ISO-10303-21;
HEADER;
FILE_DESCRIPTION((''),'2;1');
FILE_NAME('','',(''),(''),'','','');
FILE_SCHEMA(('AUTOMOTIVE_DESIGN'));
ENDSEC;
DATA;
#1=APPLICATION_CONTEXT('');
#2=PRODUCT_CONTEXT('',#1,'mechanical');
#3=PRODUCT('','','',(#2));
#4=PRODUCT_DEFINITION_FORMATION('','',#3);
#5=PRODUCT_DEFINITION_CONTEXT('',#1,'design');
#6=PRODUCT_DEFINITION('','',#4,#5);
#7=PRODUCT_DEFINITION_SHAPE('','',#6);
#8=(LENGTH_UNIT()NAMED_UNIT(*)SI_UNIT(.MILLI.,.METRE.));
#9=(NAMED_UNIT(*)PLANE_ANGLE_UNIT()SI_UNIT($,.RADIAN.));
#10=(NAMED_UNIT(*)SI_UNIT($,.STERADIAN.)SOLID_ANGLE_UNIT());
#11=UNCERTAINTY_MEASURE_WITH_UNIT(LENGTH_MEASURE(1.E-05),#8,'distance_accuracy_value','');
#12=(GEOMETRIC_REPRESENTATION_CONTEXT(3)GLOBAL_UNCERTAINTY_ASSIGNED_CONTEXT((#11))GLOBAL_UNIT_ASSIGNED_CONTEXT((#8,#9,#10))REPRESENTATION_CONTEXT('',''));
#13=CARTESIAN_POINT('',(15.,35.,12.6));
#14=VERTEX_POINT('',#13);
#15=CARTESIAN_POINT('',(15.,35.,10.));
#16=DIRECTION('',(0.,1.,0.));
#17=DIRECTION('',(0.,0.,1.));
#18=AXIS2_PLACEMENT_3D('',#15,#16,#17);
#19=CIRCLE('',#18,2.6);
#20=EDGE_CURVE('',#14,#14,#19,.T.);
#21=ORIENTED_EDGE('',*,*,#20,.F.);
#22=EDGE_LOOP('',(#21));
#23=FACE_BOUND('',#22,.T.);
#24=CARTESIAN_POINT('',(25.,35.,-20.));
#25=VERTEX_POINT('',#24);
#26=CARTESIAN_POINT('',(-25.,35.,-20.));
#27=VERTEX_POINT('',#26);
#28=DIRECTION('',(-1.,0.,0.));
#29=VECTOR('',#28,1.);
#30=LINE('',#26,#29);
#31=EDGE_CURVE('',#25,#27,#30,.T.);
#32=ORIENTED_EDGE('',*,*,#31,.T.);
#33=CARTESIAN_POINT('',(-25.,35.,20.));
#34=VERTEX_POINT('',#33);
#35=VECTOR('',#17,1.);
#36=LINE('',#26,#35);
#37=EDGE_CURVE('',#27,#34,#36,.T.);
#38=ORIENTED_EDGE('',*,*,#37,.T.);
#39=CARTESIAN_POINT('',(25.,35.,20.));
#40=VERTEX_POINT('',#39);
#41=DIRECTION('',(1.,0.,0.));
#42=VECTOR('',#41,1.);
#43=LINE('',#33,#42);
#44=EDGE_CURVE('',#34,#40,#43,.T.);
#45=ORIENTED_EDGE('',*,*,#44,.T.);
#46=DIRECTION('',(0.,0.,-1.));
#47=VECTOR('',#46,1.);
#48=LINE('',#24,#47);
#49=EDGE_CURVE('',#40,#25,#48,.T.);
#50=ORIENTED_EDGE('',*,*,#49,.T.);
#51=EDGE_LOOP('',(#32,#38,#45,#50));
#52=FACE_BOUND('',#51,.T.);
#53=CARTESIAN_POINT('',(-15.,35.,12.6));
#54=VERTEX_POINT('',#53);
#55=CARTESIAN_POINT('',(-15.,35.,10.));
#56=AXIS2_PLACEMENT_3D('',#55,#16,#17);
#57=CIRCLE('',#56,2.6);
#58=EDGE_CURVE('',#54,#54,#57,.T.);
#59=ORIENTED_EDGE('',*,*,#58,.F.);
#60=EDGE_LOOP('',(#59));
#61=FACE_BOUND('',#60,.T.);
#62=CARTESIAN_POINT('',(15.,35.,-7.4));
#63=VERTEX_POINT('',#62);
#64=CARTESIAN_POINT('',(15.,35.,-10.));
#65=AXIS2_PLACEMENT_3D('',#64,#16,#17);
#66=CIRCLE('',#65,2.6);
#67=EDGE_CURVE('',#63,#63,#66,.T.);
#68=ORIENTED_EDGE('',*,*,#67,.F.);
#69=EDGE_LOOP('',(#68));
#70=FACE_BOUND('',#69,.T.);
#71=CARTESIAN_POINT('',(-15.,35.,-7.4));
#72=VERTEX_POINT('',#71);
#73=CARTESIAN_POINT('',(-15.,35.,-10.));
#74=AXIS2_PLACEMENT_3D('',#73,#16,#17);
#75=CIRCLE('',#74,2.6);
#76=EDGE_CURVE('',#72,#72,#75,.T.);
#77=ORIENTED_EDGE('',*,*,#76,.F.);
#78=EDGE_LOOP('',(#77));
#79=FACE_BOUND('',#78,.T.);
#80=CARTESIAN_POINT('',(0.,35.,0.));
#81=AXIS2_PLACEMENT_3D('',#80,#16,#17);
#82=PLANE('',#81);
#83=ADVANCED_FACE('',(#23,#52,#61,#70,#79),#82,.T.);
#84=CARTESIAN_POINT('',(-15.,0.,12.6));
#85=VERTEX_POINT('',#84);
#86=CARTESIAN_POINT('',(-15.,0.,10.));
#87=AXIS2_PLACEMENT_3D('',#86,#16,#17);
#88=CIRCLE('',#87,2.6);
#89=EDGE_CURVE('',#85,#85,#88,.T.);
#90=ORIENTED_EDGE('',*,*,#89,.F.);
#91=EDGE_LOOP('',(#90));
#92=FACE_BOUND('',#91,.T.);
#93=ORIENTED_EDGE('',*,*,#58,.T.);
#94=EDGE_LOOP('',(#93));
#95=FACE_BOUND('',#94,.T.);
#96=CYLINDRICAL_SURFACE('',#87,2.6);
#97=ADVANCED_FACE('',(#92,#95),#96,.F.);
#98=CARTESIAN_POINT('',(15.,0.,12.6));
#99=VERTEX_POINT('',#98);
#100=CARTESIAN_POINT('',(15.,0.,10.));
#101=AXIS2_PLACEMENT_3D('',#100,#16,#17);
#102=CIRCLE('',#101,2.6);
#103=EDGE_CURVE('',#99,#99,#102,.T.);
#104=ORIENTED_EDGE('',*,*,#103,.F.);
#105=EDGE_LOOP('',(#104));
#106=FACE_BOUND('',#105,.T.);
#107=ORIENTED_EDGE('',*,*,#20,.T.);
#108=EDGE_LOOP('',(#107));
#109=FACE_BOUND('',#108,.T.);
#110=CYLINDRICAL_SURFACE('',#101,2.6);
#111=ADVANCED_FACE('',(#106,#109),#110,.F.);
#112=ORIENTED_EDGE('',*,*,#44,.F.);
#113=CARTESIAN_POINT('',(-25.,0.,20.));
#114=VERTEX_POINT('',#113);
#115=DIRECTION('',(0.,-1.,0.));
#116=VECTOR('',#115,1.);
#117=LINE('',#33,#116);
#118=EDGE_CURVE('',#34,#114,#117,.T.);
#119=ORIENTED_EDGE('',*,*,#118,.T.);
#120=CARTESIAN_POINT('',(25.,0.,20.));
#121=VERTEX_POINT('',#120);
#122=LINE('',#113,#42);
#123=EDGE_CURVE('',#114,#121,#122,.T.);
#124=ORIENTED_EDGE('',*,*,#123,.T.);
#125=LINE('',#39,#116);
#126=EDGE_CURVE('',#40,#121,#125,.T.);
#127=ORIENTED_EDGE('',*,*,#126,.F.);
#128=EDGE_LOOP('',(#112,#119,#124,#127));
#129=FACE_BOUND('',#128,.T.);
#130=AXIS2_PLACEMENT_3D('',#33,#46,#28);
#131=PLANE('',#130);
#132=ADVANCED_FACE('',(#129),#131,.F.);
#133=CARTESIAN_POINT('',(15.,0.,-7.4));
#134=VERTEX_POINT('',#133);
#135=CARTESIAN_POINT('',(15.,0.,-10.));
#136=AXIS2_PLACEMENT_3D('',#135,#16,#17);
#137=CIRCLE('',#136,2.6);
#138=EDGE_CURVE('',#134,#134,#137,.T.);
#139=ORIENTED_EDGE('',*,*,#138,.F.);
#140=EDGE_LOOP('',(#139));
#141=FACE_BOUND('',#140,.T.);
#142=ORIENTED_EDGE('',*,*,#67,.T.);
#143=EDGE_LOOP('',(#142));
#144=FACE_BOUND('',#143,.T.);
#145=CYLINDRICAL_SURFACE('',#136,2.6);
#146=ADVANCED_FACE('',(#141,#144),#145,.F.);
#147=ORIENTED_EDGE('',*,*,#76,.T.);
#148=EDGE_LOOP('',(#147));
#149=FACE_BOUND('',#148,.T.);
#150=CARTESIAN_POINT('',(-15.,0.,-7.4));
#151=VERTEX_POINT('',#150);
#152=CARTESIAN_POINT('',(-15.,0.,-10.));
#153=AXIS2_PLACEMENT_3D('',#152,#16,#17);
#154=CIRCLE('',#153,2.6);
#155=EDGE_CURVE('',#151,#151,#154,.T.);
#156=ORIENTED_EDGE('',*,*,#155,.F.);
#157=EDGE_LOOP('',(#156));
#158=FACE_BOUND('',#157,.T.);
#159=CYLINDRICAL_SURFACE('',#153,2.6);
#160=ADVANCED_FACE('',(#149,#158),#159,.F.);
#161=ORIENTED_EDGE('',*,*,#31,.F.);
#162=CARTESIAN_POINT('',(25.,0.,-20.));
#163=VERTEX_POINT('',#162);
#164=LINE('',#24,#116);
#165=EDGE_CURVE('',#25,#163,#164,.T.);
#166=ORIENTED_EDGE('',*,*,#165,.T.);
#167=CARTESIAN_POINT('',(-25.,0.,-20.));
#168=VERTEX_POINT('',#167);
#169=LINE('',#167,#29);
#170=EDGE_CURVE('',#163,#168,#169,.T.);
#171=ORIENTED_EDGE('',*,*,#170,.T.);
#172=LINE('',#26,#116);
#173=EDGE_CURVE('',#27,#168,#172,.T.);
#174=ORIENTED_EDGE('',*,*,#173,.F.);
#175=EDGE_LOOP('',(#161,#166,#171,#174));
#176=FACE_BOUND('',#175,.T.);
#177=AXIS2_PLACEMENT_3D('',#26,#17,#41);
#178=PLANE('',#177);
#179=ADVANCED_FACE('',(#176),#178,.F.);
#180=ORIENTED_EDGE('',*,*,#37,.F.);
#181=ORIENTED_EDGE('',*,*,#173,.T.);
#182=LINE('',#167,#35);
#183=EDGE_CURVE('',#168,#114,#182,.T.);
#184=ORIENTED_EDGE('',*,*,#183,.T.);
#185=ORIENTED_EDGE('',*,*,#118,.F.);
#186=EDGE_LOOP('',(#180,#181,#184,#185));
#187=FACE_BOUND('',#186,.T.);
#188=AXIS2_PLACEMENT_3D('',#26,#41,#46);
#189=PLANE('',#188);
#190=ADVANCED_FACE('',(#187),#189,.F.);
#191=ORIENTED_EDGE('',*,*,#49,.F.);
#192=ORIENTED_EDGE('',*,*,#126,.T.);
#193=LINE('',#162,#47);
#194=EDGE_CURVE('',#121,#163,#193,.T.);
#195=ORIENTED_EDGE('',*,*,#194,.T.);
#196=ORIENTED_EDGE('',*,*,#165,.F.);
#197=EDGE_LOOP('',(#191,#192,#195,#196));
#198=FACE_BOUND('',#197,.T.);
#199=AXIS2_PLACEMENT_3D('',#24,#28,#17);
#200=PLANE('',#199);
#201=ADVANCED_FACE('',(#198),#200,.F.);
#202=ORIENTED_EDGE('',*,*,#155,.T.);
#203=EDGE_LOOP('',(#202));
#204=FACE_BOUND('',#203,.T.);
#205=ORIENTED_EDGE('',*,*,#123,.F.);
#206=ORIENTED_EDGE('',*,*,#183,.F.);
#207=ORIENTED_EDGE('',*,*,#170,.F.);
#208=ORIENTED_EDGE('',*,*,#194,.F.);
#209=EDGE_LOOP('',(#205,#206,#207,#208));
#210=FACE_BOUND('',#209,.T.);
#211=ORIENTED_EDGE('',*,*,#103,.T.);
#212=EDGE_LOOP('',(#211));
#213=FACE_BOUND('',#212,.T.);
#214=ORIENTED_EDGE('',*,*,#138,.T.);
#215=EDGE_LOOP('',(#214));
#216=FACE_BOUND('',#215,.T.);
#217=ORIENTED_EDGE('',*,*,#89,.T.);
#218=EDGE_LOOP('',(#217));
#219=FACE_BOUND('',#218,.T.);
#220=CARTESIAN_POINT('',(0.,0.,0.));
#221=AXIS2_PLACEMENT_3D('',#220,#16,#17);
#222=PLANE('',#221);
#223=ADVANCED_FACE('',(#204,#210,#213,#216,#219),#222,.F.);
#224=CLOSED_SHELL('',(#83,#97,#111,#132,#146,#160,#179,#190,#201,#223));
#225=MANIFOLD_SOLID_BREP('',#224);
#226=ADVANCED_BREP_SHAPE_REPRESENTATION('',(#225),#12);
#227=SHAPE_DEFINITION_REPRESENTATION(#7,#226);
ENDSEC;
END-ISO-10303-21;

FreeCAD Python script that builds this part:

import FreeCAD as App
import Part
import Sketcher
from FreeCAD import Vector


def add_polygon(sketch, points):
    """Adds a closed chain of lines whose ends are joined by coincident constraints."""
    first, n = sketch.GeometryCount, len(points)
    for a, b in zip(points, points[1:] + points[:1]):
        sketch.addGeometry(Part.LineSegment(App.Vector(*a, 0), App.Vector(*b, 0)), False)
    for i in range(n):
        sketch.addConstraint(Sketcher.Constraint("Coincident", first + i, 2, first + (i + 1) % n, 1))

doc = App.newDocument("Part")
params = doc.addObject("Spreadsheet::Sheet", "Params")
for row, (alias, value) in enumerate([
    ("sketch1_width", "50 mm"),
    ("sketch1_height", "40 mm"),
    ("pad1_length", "35 mm"),
    ("sketch2_diameter", "5.2 mm"),
], start=1):
    params.set(f"A{row}", alias)
    params.set(f"B{row}", "=" + value)
    params.setAlias(f"B{row}", alias)

body = doc.addObject("PartDesign::Body", "Body")

# Sketch on XZ plane
sketch1 = body.newObject("Sketcher::SketchObject", "Sketch")
sketch1.AttachmentSupport = (doc.getObject("XZ_Plane"), [""])
sketch1.MapMode = "FlatFace"
add_polygon(sketch1, [(-25, -20), (-25, 20), (25, 20), (25, -20)])  # lines 0-3
sketch1.addConstraint(Sketcher.Constraint("Vertical", 0))
sketch1.addConstraint(Sketcher.Constraint("Horizontal", 1))
sketch1.addConstraint(Sketcher.Constraint("Vertical", 2))
sketch1.addConstraint(Sketcher.Constraint("Horizontal", 3))
sketch1.addConstraint(Sketcher.Constraint("Symmetric", 0, 2, 2, 2, -1, 1))
sketch1.addConstraint(Sketcher.Constraint("DistanceX", 1, 1, 1, 2, 50.0))
sketch1.addConstraint(Sketcher.Constraint("DistanceY", 0, 1, 0, 2, 40.0))
sketch1.setExpression("Constraints[9]", "Params.sketch1_width")
sketch1.setExpression("Constraints[10]", "Params.sketch1_height")
pad1 = body.newObject("PartDesign::Pad", "Pad")
pad1.Profile = sketch1
pad1.setExpression("Length", "Params.pad1_length")
pad1.Reversed = True

# Sketch on XZ plane
sketch2 = body.newObject("Sketcher::SketchObject", "Sketch001")
sketch2.AttachmentSupport = (doc.getObject("XZ_Plane"), [""])
sketch2.MapMode = "FlatFace"
sketch2.AttachmentOffset = App.Placement(Vector(0, 0, -35), App.Rotation())
sketch2.addGeometry(Part.Circle(Vector(-15, 10, 0), Vector(0, 0, 1), 2.6), False)
sketch2.addGeometry(Part.Circle(Vector(15, 10, 0), Vector(0, 0, 1), 2.6), False)
sketch2.addGeometry(Part.Circle(Vector(-15, -10, 0), Vector(0, 0, 1), 2.6), False)
sketch2.addGeometry(Part.Circle(Vector(15, -10, 0), Vector(0, 0, 1), 2.6), False)
sketch2.addConstraint(Sketcher.Constraint("Equal", 0, 1))
sketch2.addConstraint(Sketcher.Constraint("Equal", 1, 2))
sketch2.addConstraint(Sketcher.Constraint("Equal", 2, 3))
sketch2.addConstraint(Sketcher.Constraint("Symmetric", 1, 3, 2, 3, -1, 1))
sketch2.addConstraint(Sketcher.Constraint("Symmetric", 0, 3, 3, 3, -1, 1))
sketch2.addConstraint(Sketcher.Constraint("Symmetric", 0, 3, 1, 3, -2))
sketch2.addConstraint(Sketcher.Constraint("Diameter", 0, 5.2))
sketch2.addConstraint(Sketcher.Constraint("DistanceX", 0, 3, -1, 1, 15.0))
sketch2.addConstraint(Sketcher.Constraint("DistanceY", -1, 1, 0, 3, 10.0))
sketch2.setExpression("Constraints[6]", "Params.sketch2_diameter")
pocket1 = body.newObject("PartDesign::Pocket", "Pocket")
pocket1.Profile = sketch2
pocket1.Type = "ThroughAll"
pocket1.Reversed = True

doc.recompute()
